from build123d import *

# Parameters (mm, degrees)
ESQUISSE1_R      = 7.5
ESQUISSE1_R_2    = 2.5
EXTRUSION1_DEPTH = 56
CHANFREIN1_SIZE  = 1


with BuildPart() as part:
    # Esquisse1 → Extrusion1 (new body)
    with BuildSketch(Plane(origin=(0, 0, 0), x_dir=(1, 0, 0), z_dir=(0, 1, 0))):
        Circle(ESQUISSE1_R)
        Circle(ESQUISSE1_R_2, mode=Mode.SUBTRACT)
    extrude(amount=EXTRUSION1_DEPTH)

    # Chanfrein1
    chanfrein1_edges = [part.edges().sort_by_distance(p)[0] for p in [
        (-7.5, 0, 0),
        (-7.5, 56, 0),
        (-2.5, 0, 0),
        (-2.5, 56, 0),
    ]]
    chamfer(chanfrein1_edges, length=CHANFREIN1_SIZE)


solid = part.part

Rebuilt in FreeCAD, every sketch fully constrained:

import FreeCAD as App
import Part
import Sketcher

V = App.Vector


def edges_at(feature, points):
    """Names of the edges that pass closest to the given points."""
    edges = feature.Shape.Edges
    near = lambda p: min(range(len(edges)), key=lambda i: edges[i].distToShape(Part.Vertex(*p))[0])
    return sorted({f"Edge{near(p) + 1}" for p in points})

doc = App.newDocument("Part")
body = doc.addObject("PartDesign::Body", "Body")

# Sketch on XZ plane
sketch1 = body.newObject("Sketcher::SketchObject", "Sketch")
sketch1.AttachmentSupport = (doc.getObject("XZ_Plane"), [""])
sketch1.MapMode = "FlatFace"
sketch1.addGeometry([
    Part.Circle(V(0, 0, 0), V(0, 0, 1), 7.5),
    Part.Circle(V(0, 0, 0), V(0, 0, 1), 2.5),
], False)
sketch1.addConstraint([
    Sketcher.Constraint("Coincident", 0, 3, -1, 1),
    Sketcher.Constraint("Coincident", 1, 3, -1, 1),
    Sketcher.Constraint("Diameter", 0, 15.0),
    Sketcher.Constraint("Diameter", 1, 5.0),
])
pad1 = body.newObject("PartDesign::Pad", "Pad")
pad1.Profile = sketch1
pad1.Length = 56
pad1.Reversed = True
doc.recompute()

chamfer = body.newObject("PartDesign::Chamfer", "Chamfer")
chamfer.Base = (pad1, edges_at(pad1, [
    (-7.5, 0, 0),
    (-7.5, 56, 0),
    (-2.5, 0, 0),
    (-2.5, 56, 0),
]))
chamfer.Size = 1

doc.recompute()
